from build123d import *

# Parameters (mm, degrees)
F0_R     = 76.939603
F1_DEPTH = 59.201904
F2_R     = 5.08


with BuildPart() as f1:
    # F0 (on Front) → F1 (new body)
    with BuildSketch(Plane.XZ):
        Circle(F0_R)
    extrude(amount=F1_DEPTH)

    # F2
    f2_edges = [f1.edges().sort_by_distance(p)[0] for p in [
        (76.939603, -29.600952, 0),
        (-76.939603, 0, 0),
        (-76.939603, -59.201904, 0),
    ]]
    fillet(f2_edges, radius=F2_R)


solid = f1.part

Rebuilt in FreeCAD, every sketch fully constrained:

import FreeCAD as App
import Part
import Sketcher
from FreeCAD import Vector
Q = App.Units.Quantity

doc = App.newDocument("Part")
body = doc.addObject("PartDesign::Body", "Body")

# Sketch on XZ plane
sketch1 = doc.addObject("Sketcher::SketchObject", "Sketch")
body.addObject(sketch1)
sketch1.AttachmentSupport = (doc.XZ_Plane, [""])
sketch1.MapMode = "FlatFace"
sketch1.addGeometry(Part.Circle(Vector(0, 0, 0), Vector(0, 0, 1), 76.939603), False)
sketch1.addConstraint([
    Sketcher.Constraint("Coincident", 0, 3, -1, 1),
    Sketcher.Constraint("Diameter", 0, Q("153.879206 mm")),
])
pad1 = doc.addObject("PartDesign::Pad", "Pad")
body.addObject(pad1)
pad1.Profile = sketch1
pad1.Length = 59.201904
doc.recompute()

fillet = doc.addObject("PartDesign::Fillet", "Fillet")
body.addObject(fillet)
fillet.Base = (pad1, ["Edge1"])
fillet.UseAllEdges = True
fillet.Radius = Q("0.2 in")

doc.recompute()
